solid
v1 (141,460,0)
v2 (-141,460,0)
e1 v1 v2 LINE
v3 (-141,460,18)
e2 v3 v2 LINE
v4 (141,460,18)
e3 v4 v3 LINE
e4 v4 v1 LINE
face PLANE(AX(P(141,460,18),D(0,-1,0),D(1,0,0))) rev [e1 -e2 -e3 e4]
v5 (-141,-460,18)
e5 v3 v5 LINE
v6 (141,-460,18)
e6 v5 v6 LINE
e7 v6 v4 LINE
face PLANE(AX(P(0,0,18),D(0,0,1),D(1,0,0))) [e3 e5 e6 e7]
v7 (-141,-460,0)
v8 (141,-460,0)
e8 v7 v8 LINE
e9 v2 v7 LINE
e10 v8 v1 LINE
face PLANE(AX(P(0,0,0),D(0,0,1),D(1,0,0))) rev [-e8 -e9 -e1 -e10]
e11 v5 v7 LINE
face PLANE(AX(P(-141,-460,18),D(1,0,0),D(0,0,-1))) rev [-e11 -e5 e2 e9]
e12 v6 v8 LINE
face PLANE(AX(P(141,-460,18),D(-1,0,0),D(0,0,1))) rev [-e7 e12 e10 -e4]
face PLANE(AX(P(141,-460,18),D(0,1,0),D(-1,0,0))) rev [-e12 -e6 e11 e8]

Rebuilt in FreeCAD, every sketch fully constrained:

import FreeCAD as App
import Part
import Sketcher
from FreeCAD import Vector
Q = App.Units.Quantity

doc = App.newDocument("Part")
params = doc.addObject("Spreadsheet::Sheet", "Params")
for row, (alias, value) in enumerate([
    ("sketch1_width", "282 mm"),
    ("sketch1_height", "920 mm"),
    ("pad1_length", "18 mm"),
], start=1):
    params.set(f"A{row}", alias)
    params.set(f"B{row}", "=" + value)
    params.setAlias(f"B{row}", alias)

body = doc.addObject("PartDesign::Body", "Body")

sketch1 = body.newObject("Sketcher::SketchObject", "Sketch")
sketch1.AttachmentSupport = (doc.getObject("XY_Plane"), [""])
sketch1.MapMode = "FlatFace"
sketch1.addGeometry(Part.LineSegment(Vector(-141, 460, 0), Vector(-141, -460, 0)), False)
sketch1.addGeometry(Part.LineSegment(Vector(-141, -460, 0), Vector(141, -460, 0)), False)
sketch1.addGeometry(Part.LineSegment(Vector(141, -460, 0), Vector(141, 460, 0)), False)
sketch1.addGeometry(Part.LineSegment(Vector(141, 460, 0), Vector(-141, 460, 0)), False)
sketch1.addConstraint(Sketcher.Constraint("Coincident", 0, 2, 1, 1))
sketch1.addConstraint(Sketcher.Constraint("Coincident", 1, 2, 2, 1))
sketch1.addConstraint(Sketcher.Constraint("Coincident", 2, 2, 3, 1))
sketch1.addConstraint(Sketcher.Constraint("Coincident", 3, 2, 0, 1))
sketch1.addConstraint(Sketcher.Constraint("Vertical", 0))
sketch1.addConstraint(Sketcher.Constraint("Horizontal", 1))
sketch1.addConstraint(Sketcher.Constraint("Vertical", 2))
sketch1.addConstraint(Sketcher.Constraint("Horizontal", 3))
sketch1.addConstraint(Sketcher.Constraint("Symmetric", 0, 2, 2, 2, -1, 1))
sketch1.addConstraint(Sketcher.Constraint("DistanceX", 1, 1, 1, 2, Q("282 mm")))
sketch1.addConstraint(Sketcher.Constraint("DistanceY", 0, 2, 0, 1, Q("920 mm")))
sketch1.setExpression("Constraints[9]", "Params.sketch1_width")
sketch1.setExpression("Constraints[10]", "Params.sketch1_height")
pad1 = body.newObject("PartDesign::Pad", "Pad")
pad1.Profile = sketch1
pad1.setExpression("Length", "Params.pad1_length")

doc.recompute()
